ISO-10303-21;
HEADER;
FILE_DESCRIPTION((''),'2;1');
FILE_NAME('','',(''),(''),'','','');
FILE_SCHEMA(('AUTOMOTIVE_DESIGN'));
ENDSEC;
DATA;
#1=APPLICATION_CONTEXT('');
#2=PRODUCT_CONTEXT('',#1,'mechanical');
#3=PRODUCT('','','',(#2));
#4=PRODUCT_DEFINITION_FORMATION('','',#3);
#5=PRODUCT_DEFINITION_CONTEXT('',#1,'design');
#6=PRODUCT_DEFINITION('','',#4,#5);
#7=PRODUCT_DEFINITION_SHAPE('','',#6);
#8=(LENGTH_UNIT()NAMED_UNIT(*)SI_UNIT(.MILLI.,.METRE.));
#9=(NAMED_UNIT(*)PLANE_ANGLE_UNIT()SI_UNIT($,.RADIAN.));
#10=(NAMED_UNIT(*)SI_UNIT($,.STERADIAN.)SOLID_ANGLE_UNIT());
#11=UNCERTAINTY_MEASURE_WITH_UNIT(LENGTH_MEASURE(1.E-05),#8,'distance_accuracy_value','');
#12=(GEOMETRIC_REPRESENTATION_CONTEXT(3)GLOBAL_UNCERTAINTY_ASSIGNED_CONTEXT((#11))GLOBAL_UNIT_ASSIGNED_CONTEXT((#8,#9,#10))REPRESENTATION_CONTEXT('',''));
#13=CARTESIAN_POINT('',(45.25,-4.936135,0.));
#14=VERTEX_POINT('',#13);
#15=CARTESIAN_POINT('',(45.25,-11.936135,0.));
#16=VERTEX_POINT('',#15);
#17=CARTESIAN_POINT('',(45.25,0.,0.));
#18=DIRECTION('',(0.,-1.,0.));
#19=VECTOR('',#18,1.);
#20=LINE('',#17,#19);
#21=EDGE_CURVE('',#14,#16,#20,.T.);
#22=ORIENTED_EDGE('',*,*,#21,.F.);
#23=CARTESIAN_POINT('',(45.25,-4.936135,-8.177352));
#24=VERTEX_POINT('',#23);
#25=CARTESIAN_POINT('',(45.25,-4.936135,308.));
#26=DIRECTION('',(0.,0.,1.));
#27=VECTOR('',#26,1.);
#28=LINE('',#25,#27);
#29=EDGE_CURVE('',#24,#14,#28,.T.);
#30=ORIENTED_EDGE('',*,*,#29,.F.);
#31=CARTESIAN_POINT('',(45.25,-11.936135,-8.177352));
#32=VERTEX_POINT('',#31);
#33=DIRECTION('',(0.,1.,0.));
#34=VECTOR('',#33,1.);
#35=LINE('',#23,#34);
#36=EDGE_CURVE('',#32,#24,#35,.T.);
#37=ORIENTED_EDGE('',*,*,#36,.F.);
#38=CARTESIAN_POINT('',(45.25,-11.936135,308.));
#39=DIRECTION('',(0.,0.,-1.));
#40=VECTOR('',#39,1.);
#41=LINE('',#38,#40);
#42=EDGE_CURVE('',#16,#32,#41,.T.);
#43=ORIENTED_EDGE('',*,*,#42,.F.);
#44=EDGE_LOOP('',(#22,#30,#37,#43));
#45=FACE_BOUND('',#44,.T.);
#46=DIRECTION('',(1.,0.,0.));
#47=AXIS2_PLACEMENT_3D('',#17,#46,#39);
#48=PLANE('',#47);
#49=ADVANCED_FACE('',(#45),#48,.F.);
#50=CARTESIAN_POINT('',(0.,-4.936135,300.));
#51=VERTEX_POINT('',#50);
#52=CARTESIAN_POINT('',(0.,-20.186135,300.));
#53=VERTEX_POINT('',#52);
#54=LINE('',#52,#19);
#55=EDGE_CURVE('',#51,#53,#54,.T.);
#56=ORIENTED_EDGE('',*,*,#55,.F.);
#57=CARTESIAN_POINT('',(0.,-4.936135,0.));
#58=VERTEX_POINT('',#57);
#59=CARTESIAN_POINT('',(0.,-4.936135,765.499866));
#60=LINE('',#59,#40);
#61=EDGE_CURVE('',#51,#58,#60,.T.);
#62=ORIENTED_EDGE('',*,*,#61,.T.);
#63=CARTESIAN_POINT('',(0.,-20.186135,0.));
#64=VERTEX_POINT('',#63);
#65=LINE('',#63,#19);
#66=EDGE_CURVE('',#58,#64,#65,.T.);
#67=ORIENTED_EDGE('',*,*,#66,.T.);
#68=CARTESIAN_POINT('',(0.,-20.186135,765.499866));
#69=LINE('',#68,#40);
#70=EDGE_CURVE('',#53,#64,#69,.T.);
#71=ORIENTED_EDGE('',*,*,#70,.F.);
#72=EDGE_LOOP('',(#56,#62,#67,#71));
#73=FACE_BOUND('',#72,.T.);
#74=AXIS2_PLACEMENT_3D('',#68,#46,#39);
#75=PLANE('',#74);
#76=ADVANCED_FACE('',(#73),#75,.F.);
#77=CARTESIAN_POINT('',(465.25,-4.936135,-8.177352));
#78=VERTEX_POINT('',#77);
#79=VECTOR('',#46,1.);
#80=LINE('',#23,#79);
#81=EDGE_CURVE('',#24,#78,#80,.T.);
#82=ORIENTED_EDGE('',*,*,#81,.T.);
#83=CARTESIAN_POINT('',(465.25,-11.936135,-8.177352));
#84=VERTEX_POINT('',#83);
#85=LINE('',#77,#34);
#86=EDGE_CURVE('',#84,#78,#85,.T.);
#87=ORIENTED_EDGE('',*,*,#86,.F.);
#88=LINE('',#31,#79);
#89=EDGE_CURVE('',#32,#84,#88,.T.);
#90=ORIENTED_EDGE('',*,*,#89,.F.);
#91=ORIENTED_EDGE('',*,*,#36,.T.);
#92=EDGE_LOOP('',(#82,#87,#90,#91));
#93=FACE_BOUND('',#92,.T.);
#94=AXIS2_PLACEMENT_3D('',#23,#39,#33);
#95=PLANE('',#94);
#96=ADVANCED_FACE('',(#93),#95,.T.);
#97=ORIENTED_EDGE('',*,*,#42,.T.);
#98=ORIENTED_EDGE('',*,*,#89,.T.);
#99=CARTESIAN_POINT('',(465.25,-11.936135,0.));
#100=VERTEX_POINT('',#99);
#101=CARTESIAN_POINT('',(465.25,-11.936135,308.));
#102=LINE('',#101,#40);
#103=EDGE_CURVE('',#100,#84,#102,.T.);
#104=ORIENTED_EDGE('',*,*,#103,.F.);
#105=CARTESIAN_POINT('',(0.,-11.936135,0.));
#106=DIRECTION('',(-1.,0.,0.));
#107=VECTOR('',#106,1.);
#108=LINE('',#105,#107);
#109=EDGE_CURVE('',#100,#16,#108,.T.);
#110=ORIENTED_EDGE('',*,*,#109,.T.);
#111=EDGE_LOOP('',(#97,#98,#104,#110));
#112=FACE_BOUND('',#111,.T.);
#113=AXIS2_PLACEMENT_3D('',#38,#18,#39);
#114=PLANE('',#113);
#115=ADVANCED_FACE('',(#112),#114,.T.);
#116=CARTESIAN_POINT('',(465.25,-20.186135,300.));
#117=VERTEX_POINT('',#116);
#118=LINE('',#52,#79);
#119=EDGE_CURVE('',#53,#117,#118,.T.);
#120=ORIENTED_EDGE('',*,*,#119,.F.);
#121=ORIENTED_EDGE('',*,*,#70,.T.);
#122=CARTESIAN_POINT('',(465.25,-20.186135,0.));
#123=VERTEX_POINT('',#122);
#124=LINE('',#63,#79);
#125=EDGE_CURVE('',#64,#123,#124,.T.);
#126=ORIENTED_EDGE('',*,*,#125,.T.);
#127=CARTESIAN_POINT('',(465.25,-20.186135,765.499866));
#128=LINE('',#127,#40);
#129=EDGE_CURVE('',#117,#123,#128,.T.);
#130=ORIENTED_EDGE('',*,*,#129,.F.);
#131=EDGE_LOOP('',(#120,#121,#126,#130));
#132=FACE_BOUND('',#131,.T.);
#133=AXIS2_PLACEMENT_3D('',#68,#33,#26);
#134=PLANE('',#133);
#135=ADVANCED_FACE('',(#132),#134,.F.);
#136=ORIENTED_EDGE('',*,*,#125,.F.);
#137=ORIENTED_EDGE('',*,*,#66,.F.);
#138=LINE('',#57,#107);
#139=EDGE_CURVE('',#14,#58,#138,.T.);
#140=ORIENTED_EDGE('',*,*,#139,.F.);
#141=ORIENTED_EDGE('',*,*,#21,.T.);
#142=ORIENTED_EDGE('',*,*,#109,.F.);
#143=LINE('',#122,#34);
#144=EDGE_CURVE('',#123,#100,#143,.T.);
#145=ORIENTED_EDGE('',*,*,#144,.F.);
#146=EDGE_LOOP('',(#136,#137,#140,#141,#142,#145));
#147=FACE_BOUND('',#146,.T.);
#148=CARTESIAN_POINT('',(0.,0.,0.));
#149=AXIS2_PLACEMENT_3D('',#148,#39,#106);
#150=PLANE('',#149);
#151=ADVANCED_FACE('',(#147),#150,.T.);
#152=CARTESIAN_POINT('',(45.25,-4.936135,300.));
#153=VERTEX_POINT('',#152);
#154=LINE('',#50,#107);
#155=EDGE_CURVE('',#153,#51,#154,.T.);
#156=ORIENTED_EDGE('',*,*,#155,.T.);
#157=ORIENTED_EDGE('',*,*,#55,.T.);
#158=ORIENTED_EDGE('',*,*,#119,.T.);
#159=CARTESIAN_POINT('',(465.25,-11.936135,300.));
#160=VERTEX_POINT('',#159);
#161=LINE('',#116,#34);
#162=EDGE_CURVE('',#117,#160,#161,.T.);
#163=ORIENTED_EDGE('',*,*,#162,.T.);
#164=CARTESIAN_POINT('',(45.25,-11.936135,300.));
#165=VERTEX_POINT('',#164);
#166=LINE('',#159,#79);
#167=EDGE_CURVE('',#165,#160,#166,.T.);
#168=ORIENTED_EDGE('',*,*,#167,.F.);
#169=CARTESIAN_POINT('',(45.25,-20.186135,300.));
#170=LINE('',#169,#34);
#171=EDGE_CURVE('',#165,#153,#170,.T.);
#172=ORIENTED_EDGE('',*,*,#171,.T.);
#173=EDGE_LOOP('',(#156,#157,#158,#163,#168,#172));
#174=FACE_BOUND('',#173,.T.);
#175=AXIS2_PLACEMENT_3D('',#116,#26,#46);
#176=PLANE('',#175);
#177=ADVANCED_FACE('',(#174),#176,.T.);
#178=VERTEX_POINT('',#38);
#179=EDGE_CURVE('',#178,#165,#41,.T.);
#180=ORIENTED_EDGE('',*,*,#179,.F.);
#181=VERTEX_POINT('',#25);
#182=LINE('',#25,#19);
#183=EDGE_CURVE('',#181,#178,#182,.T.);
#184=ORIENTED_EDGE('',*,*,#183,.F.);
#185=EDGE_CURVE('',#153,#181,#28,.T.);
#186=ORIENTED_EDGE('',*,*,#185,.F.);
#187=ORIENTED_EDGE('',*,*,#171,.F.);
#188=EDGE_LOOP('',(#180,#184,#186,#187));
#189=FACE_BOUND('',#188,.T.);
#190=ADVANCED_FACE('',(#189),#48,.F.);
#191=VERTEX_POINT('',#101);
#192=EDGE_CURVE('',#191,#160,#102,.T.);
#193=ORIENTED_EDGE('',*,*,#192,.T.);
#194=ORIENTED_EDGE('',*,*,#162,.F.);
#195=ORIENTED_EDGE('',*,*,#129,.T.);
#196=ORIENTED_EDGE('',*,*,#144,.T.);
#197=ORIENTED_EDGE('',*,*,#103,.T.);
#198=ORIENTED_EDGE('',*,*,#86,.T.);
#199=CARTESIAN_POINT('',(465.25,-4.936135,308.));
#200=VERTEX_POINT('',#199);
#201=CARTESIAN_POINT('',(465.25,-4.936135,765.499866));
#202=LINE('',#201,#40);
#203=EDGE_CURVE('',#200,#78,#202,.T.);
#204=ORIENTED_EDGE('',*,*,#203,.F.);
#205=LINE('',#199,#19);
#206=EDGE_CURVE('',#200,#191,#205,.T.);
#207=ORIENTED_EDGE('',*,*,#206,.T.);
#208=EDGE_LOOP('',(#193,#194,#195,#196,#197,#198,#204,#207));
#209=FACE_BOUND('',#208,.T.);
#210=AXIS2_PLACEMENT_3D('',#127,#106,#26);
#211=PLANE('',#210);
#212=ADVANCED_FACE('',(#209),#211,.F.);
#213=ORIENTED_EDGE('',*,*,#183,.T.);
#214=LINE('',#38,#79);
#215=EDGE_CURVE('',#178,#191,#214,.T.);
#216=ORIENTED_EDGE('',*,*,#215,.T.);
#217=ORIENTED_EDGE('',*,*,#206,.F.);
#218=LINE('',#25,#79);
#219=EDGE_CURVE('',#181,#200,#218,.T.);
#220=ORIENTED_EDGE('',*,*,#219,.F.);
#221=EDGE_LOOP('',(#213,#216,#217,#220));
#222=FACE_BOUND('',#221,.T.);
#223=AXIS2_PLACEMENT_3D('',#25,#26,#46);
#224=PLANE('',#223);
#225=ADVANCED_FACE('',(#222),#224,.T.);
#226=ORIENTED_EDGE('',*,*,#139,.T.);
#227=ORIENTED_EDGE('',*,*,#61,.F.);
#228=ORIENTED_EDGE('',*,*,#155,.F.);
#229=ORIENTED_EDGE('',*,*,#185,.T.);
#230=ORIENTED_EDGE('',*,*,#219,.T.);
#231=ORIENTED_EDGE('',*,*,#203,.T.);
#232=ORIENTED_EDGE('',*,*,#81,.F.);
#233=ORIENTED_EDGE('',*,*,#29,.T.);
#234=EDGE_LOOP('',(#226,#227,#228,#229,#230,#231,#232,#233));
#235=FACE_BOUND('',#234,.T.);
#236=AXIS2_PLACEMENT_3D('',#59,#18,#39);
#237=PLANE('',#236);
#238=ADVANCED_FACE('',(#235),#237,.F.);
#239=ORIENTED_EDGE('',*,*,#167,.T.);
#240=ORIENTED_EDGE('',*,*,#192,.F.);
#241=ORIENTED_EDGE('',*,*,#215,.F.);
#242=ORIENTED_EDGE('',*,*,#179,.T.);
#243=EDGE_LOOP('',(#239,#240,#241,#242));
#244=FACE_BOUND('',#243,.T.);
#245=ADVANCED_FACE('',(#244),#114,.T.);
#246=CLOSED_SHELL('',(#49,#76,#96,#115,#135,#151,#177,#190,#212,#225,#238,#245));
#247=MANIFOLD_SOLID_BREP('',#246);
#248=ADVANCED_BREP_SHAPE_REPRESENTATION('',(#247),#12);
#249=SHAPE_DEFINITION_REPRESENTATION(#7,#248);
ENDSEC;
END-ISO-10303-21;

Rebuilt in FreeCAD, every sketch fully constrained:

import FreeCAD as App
import Part
import Sketcher

V = App.Vector
Q = App.Units.Quantity

doc = App.newDocument("Part")
body = doc.addObject("PartDesign::Body", "Body")

sketch1 = doc.addObject("Sketcher::SketchObject", "Sketch")
body.addObject(sketch1)
sketch1.AttachmentSupport = (doc.XY_Plane, [""])
sketch1.MapMode = "FlatFace"
sketch1.addGeometry([
    Part.LineSegment(V(0, -5, 0), V(0, -20, 0)),
    Part.LineSegment(V(0, -20, 0), V(465, -20, 0)),
    Part.LineSegment(V(465, -20, 0), V(465, -5, 0)),
    Part.LineSegment(V(465, -5, 0), V(0, -5, 0)),
], False)
sketch1.addConstraint([
    Sketcher.Constraint("Coincident", 0, 2, 1, 1),
    Sketcher.Constraint("Coincident", 1, 2, 2, 1),
    Sketcher.Constraint("Coincident", 2, 2, 3, 1),
    Sketcher.Constraint("Coincident", 3, 2, 0, 1),
    Sketcher.Constraint("Vertical", 0),
    Sketcher.Constraint("Horizontal", 1),
    Sketcher.Constraint("Vertical", 2),
    Sketcher.Constraint("Horizontal", 3),
    Sketcher.Constraint("PointOnObject", 0, 2, -2),
    Sketcher.Constraint("DistanceX", 1, 1, 1, 2, Q("465.25 mm")),
    Sketcher.Constraint("DistanceY", 0, 2, 0, 1, Q("15.25 mm")),
    Sketcher.Constraint("DistanceY", 0, 2, -1, 1, Q("20.186135 mm")),
])
pad1 = doc.addObject("PartDesign::Pad", "Pad")
body.addObject(pad1)
pad1.Profile = sketch1
pad1.Length = 300

sketch2 = doc.addObject("Sketcher::SketchObject", "Sketch001")
body.addObject(sketch2)
sketch2.AttachmentSupport = (doc.YZ_Plane, [""])
sketch2.MapMode = "FlatFace"
sketch2.AttachmentOffset = App.Placement(V(0, 0, 465.25), App.Rotation())
sketch2.addGeometry([
    Part.LineSegment(V(-5, 308, 0), V(-12, 308, 0)),
    Part.LineSegment(V(-12, 308, 0), V(-12, -8, 0)),
    Part.LineSegment(V(-12, -8, 0), V(-5, -8, 0)),
    Part.LineSegment(V(-5, -8, 0), V(-5, 308, 0)),
], False)
sketch2.addConstraint([
    Sketcher.Constraint("Coincident", 0, 2, 1, 1),
    Sketcher.Constraint("Coincident", 1, 2, 2, 1),
    Sketcher.Constraint("Coincident", 2, 2, 3, 1),
    Sketcher.Constraint("Coincident", 3, 2, 0, 1),
    Sketcher.Constraint("Horizontal", 0),
    Sketcher.Constraint("Vertical", 1),
    Sketcher.Constraint("Horizontal", 2),
    Sketcher.Constraint("Vertical", 3),
    Sketcher.Constraint("DistanceX", 0, 2, 0, 1, Q("7 mm")),
    Sketcher.Constraint("DistanceY", -1, 1, 0, 2, Q("308 mm")),
    Sketcher.Constraint("DistanceY", 1, 2, 1, 1, Q("316.177352 mm")),
    Sketcher.Constraint("DistanceX", 0, 2, -1, 1, Q("11.936135 mm")),
])
pad2 = doc.addObject("PartDesign::Pad", "Pad001")
body.addObject(pad2)
pad2.Profile = sketch2
pad2.Length = 420
pad2.Reversed = True

doc.recompute()
